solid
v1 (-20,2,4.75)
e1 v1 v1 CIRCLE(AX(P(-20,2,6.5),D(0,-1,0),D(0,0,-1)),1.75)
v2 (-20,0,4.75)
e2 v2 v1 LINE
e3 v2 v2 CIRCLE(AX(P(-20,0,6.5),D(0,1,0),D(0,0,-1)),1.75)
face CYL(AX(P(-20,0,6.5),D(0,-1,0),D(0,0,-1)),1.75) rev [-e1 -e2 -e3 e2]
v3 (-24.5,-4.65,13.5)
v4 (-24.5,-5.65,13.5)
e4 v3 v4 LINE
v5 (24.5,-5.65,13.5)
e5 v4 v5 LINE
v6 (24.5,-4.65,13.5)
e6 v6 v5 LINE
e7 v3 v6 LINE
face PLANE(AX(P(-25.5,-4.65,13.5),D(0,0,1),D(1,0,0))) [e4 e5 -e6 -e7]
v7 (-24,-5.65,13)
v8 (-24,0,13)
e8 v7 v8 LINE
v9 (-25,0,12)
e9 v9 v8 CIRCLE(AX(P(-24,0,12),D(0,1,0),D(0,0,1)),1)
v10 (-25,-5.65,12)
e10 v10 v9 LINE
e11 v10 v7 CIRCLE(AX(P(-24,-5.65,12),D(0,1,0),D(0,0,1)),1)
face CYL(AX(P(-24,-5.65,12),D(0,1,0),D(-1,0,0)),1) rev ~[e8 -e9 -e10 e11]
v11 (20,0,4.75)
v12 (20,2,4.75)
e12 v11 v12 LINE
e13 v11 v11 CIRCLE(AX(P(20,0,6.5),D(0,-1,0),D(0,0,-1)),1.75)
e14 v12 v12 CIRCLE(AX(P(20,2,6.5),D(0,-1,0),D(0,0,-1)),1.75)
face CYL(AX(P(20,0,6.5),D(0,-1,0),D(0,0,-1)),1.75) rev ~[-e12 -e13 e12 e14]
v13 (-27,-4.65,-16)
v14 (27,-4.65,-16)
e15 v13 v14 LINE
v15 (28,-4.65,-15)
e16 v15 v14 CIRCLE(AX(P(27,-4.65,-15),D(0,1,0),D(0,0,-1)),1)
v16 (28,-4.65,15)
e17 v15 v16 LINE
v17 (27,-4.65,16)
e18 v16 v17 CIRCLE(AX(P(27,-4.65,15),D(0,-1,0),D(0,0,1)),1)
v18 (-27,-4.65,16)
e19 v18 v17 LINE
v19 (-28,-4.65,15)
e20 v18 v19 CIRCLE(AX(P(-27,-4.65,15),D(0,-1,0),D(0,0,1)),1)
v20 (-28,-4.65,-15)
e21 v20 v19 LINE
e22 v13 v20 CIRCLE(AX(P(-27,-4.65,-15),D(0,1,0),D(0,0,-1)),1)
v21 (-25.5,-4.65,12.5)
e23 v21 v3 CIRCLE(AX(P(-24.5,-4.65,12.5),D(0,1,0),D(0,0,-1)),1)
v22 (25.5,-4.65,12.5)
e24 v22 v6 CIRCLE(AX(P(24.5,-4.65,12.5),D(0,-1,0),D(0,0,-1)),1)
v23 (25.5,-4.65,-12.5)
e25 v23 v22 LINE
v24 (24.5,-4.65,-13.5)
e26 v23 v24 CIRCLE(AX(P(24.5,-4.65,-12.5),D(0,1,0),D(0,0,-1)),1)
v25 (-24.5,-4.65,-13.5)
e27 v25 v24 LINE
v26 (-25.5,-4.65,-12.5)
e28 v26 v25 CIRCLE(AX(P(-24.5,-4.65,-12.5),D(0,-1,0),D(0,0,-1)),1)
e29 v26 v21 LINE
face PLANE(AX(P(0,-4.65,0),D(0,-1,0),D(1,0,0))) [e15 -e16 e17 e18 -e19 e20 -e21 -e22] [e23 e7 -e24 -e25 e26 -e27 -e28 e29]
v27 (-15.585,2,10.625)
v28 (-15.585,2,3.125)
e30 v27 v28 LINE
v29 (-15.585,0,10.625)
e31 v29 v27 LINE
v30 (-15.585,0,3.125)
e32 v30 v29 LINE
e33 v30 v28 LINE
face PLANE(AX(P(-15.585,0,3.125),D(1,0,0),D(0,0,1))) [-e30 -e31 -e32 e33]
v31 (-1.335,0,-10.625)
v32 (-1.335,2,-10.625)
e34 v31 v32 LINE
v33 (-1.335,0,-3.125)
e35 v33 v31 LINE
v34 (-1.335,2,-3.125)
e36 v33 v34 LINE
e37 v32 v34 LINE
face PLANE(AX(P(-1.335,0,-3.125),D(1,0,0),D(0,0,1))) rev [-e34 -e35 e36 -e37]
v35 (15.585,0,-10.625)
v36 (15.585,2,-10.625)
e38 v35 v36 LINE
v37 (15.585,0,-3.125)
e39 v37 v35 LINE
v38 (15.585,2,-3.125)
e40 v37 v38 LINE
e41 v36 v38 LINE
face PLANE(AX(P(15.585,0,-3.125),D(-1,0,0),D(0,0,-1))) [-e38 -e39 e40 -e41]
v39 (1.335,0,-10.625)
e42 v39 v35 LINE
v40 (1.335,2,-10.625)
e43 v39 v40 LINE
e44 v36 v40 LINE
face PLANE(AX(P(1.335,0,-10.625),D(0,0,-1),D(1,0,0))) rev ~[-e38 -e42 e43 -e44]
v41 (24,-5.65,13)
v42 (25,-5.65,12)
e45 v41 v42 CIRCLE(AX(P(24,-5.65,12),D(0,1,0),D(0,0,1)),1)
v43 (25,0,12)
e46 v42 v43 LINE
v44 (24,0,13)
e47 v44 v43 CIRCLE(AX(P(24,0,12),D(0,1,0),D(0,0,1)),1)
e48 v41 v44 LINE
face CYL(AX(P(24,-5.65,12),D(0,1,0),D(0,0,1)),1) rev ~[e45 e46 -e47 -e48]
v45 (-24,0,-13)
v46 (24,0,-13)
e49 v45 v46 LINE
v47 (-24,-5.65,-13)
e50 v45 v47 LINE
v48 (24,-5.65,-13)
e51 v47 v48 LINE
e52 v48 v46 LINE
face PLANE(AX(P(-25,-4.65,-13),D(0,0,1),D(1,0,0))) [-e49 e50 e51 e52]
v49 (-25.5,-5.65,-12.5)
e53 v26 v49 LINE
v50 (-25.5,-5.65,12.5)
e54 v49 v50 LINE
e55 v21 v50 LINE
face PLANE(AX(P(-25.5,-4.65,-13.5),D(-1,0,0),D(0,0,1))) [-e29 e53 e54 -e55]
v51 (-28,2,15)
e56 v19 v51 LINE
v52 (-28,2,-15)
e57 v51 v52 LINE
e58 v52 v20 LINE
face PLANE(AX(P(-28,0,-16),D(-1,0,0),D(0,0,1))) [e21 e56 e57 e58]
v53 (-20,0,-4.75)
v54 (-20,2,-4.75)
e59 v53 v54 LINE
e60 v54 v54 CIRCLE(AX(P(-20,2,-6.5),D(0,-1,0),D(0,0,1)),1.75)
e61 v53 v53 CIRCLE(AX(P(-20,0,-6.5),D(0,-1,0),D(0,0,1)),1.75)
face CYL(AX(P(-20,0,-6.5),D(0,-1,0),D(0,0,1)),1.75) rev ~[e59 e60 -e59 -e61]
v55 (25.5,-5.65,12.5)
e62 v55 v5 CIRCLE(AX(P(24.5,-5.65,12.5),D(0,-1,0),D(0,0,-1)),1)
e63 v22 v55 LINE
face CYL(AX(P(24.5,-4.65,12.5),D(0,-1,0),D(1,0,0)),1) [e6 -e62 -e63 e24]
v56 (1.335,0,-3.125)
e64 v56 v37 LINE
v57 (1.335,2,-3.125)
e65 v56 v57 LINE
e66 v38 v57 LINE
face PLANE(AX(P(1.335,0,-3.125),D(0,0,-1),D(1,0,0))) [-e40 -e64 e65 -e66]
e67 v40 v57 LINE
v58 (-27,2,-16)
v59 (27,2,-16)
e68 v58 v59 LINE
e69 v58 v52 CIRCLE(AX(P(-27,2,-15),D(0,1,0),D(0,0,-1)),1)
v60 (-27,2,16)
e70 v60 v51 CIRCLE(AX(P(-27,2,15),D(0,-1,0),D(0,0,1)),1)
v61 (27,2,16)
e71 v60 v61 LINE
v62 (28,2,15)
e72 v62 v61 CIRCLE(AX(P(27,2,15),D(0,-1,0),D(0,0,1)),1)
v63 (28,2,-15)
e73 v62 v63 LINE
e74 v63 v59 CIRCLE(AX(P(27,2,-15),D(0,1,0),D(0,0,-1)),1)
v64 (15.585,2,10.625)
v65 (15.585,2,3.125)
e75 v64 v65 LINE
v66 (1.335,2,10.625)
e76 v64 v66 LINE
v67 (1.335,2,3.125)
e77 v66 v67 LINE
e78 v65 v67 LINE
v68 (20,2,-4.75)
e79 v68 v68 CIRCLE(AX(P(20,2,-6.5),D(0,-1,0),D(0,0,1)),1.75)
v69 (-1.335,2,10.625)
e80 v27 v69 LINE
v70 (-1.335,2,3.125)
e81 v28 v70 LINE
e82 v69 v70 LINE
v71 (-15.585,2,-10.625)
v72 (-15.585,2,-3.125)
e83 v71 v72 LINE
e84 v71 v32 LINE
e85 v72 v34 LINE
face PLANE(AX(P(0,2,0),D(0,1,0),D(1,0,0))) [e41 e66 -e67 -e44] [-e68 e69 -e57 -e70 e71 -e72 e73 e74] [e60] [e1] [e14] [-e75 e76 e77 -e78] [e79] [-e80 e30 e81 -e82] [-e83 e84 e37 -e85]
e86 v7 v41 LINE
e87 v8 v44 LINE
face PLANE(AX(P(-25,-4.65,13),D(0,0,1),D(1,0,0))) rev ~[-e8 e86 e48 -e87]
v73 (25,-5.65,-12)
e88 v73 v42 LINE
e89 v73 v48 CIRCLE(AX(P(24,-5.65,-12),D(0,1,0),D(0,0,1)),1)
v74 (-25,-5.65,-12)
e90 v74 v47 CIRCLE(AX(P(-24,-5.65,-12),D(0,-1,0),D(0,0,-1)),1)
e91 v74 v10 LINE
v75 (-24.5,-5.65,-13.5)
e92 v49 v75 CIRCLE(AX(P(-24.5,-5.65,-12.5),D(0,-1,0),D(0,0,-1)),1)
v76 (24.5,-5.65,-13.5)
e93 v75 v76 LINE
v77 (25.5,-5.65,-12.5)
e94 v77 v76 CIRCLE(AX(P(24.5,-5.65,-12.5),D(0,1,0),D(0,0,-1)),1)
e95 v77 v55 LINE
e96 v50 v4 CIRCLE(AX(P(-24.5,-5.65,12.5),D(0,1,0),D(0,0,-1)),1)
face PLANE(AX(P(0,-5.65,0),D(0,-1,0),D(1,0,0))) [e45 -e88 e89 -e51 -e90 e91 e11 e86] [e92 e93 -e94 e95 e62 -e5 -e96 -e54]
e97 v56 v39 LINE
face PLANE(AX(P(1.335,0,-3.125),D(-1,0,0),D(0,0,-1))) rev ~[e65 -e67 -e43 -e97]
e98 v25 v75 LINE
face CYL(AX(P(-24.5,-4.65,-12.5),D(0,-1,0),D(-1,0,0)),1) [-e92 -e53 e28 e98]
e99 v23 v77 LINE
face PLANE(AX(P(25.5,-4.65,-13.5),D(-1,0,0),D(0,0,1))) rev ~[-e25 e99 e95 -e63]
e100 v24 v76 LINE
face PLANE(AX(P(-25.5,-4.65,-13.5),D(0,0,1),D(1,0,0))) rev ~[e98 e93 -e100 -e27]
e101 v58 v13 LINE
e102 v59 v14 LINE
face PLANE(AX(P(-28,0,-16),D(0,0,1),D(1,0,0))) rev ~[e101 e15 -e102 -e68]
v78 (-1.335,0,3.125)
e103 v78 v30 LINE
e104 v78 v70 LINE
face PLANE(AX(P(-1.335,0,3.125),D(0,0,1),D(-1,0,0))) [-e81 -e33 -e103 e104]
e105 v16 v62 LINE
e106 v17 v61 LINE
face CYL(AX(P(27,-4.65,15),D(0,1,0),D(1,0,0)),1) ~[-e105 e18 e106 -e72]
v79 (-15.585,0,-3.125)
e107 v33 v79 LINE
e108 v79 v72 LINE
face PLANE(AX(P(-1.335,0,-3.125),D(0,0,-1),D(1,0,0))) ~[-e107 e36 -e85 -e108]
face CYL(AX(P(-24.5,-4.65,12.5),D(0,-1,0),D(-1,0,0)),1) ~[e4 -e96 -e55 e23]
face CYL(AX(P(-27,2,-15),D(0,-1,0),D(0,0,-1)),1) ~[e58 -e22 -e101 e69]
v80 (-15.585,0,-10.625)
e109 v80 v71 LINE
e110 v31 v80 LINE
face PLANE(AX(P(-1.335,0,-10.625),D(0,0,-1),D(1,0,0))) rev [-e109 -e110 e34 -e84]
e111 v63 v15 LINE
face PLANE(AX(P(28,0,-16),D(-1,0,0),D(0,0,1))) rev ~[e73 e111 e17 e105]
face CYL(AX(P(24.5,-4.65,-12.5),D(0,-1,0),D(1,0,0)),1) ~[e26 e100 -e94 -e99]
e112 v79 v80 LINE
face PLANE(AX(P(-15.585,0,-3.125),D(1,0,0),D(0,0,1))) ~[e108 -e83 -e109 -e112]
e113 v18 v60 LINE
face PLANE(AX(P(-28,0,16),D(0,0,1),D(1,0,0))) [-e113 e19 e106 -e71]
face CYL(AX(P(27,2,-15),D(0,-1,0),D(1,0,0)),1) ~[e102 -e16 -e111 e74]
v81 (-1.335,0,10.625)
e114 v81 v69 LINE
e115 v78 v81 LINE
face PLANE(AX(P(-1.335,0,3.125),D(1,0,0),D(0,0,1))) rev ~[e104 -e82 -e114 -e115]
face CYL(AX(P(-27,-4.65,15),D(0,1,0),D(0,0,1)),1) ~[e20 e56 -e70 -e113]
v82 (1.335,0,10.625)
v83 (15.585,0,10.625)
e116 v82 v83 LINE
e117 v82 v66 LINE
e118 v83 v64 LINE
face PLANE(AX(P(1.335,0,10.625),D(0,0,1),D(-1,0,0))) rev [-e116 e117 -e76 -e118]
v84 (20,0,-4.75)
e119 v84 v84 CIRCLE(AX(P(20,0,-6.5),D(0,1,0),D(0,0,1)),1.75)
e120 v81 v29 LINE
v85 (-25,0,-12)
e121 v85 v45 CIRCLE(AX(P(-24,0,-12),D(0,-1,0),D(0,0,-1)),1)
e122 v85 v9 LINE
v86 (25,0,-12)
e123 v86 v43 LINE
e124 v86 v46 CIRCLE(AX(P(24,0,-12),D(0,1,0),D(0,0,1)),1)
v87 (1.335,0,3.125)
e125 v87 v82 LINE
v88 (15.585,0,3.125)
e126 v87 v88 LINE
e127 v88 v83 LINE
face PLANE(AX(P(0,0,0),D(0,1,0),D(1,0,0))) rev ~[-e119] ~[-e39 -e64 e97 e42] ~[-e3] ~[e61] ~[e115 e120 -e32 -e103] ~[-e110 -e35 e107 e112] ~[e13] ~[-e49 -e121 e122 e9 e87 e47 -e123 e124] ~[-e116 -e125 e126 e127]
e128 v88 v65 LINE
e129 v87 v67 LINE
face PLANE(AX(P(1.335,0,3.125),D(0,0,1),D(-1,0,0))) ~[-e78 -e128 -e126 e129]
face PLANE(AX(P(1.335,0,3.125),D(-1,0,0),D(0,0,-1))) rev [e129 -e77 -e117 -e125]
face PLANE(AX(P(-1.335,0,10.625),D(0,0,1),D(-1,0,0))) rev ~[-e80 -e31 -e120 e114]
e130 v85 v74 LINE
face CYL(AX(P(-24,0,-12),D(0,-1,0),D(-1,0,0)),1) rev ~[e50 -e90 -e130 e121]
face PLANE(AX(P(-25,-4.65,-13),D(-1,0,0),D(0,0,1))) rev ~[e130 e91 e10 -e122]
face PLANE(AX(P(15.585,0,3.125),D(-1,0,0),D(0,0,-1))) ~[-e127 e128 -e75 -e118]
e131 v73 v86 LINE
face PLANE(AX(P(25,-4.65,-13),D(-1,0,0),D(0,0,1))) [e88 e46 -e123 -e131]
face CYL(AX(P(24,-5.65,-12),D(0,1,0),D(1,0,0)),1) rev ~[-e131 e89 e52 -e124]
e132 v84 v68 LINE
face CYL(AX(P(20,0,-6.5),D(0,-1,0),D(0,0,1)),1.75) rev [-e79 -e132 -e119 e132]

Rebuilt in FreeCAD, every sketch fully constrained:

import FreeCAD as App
import Part
import Sketcher


def edges_at(feature, points):
    """Names of the edges that pass closest to the given points."""
    edges = feature.Shape.Edges
    near = lambda p: min(range(len(edges)), key=lambda i: edges[i].distToShape(Part.Vertex(*p))[0])
    return sorted({f"Edge{near(p) + 1}" for p in points})

doc = App.newDocument("Part")
body = doc.addObject("PartDesign::Body", "Body")

sketch1 = body.newObject("Sketcher::SketchObject", "Sketch")
sketch1.AttachmentSupport = (doc.getObject("XZ_Plane"), [""])
sketch1.MapMode = "FlatFace"
sketch1.addGeometry([
    Part.LineSegment(App.Vector(-28, -16, 0), App.Vector(-28, 16, 0)),
    Part.LineSegment(App.Vector(-28, 16, 0), App.Vector(28, 16, 0)),
    Part.LineSegment(App.Vector(28, 16, 0), App.Vector(28, -16, 0)),
    Part.LineSegment(App.Vector(28, -16, 0), App.Vector(-28, -16, 0)),
], False)
sketch1.addConstraint([
    Sketcher.Constraint("Coincident", 0, 2, 1, 1),
    Sketcher.Constraint("Coincident", 1, 2, 2, 1),
    Sketcher.Constraint("Coincident", 2, 2, 3, 1),
    Sketcher.Constraint("Coincident", 3, 2, 0, 1),
    Sketcher.Constraint("Vertical", 0),
    Sketcher.Constraint("Horizontal", 1),
    Sketcher.Constraint("Vertical", 2),
    Sketcher.Constraint("Horizontal", 3),
    Sketcher.Constraint("Symmetric", 0, 2, 2, 2, -1, 1),
    Sketcher.Constraint("DistanceX", 1, 1, 1, 2, 56.0),
    Sketcher.Constraint("DistanceY", 0, 1, 0, 2, 32.0),
])
pad1 = body.newObject("PartDesign::Pad", "Pad")
pad1.Profile = sketch1
pad1.Length = 2
pad1.Reversed = True

sketch2 = body.newObject("Sketcher::SketchObject", "Sketch001")
sketch2.AttachmentSupport = (doc.getObject("XZ_Plane"), [""])
sketch2.MapMode = "FlatFace"
sketch2.addGeometry(Part.Circle(App.Vector(20, -6.5, 0), App.Vector(0, 0, 1), 1.8), False)
sketch2.addConstraint([
    Sketcher.Constraint("Diameter", 0, 3.5),
    Sketcher.Constraint("DistanceX", -1, 1, 0, 3, 20.0),
    Sketcher.Constraint("DistanceY", 0, 3, -1, 1, 6.5),
])
pocket1 = body.newObject("PartDesign::Pocket", "Pocket")
pocket1.Profile = sketch2
pocket1.Type = "ThroughAll"
doc.recompute()

mirrored = body.newObject("PartDesign::Mirrored", "Mirrored")
mirrored.Originals = [pocket1]
mirrored.MirrorPlane = (doc.getObject("XY_Plane"), [""])
body.Tip = mirrored
doc.recompute()

mirrored2 = body.newObject("PartDesign::Mirrored", "Mirrored001")
mirrored2.Originals = [pocket1]
mirrored2.MirrorPlane = (doc.getObject("YZ_Plane"), [""])
body.Tip = mirrored2

sketch3 = body.newObject("Sketcher::SketchObject", "Sketch002")
sketch3.AttachmentSupport = (doc.getObject("XZ_Plane"), [""])
sketch3.MapMode = "FlatFace"
sketch3.addGeometry(Part.Circle(App.Vector(-20, 6.5, 0), App.Vector(0, 0, 1), 1.8), False)
sketch3.addConstraint([
    Sketcher.Constraint("Diameter", 0, 3.5),
    Sketcher.Constraint("DistanceX", 0, 3, -1, 1, 20.0),
    Sketcher.Constraint("DistanceY", -1, 1, 0, 3, 6.5),
])
pocket2 = body.newObject("PartDesign::Pocket", "Pocket001")
pocket2.Profile = sketch3
pocket2.Type = "ThroughAll"

sketch4 = body.newObject("Sketcher::SketchObject", "Sketch003")
sketch4.AttachmentSupport = (doc.getObject("XZ_Plane"), [""])
sketch4.MapMode = "FlatFace"
sketch4.addGeometry([
    Part.LineSegment(App.Vector(1, -11, 0), App.Vector(1, -3, 0)),
    Part.LineSegment(App.Vector(1, -3, 0), App.Vector(16, -3, 0)),
    Part.LineSegment(App.Vector(16, -3, 0), App.Vector(16, -11, 0)),
    Part.LineSegment(App.Vector(16, -11, 0), App.Vector(1, -11, 0)),
], False)
sketch4.addConstraint([
    Sketcher.Constraint("Coincident", 0, 2, 1, 1),
    Sketcher.Constraint("Coincident", 1, 2, 2, 1),
    Sketcher.Constraint("Coincident", 2, 2, 3, 1),
    Sketcher.Constraint("Coincident", 3, 2, 0, 1),
    Sketcher.Constraint("Vertical", 0),
    Sketcher.Constraint("Horizontal", 1),
    Sketcher.Constraint("Vertical", 2),
    Sketcher.Constraint("Horizontal", 3),
    Sketcher.Constraint("DistanceY", 0, 1, 0, 2, 7.5),
    Sketcher.Constraint("DistanceX", 1, 1, 1, 2, 14.25),
    Sketcher.Constraint("DistanceX", -1, 1, 0, 2, 1.335),
    Sketcher.Constraint("DistanceY", 0, 2, -1, 1, 3.125),
])
pocket3 = body.newObject("PartDesign::Pocket", "Pocket002")
pocket3.Profile = sketch4
pocket3.Type = "ThroughAll"
doc.recompute()

mirrored3 = body.newObject("PartDesign::Mirrored", "Mirrored002")
mirrored3.Originals = [pocket3]
mirrored3.MirrorPlane = (doc.getObject("YZ_Plane"), [""])
body.Tip = mirrored3
doc.recompute()

mirrored4 = body.newObject("PartDesign::Mirrored", "Mirrored003")
mirrored4.Originals = [pocket3]
mirrored4.MirrorPlane = (doc.getObject("XY_Plane"), [""])
body.Tip = mirrored4

sketch5 = body.newObject("Sketcher::SketchObject", "Sketch004")
sketch5.AttachmentSupport = (doc.getObject("XZ_Plane"), [""])
sketch5.MapMode = "FlatFace"
sketch5.addGeometry([
    Part.LineSegment(App.Vector(-1, 11, 0), App.Vector(-1, 3, 0)),
    Part.LineSegment(App.Vector(-1, 3, 0), App.Vector(-16, 3, 0)),
    Part.LineSegment(App.Vector(-16, 3, 0), App.Vector(-16, 11, 0)),
    Part.LineSegment(App.Vector(-16, 11, 0), App.Vector(-1, 11, 0)),
], False)
sketch5.addConstraint([
    Sketcher.Constraint("Coincident", 0, 2, 1, 1),
    Sketcher.Constraint("Coincident", 1, 2, 2, 1),
    Sketcher.Constraint("Coincident", 2, 2, 3, 1),
    Sketcher.Constraint("Coincident", 3, 2, 0, 1),
    Sketcher.Constraint("Vertical", 0),
    Sketcher.Constraint("Horizontal", 1),
    Sketcher.Constraint("Vertical", 2),
    Sketcher.Constraint("Horizontal", 3),
    Sketcher.Constraint("DistanceY", 0, 2, 0, 1, 7.5),
    Sketcher.Constraint("DistanceX", 1, 2, 1, 1, 14.25),
    Sketcher.Constraint("DistanceX", 0, 2, -1, 1, 1.335),
    Sketcher.Constraint("DistanceY", -1, 1, 0, 2, 3.125),
])
pocket4 = body.newObject("PartDesign::Pocket", "Pocket003")
pocket4.Profile = sketch5
pocket4.Type = "ThroughAll"

sketch6 = body.newObject("Sketcher::SketchObject", "Sketch005")
sketch6.AttachmentSupport = (doc.getObject("XZ_Plane"), [""])
sketch6.MapMode = "FlatFace"
sketch6.addGeometry([
    Part.LineSegment(App.Vector(-28, 16, 0), App.Vector(-28, -16, 0)),
    Part.LineSegment(App.Vector(-28, -16, 0), App.Vector(28, -16, 0)),
    Part.LineSegment(App.Vector(28, -16, 0), App.Vector(28, 16, 0)),
    Part.LineSegment(App.Vector(28, 16, 0), App.Vector(-28, 16, 0)),
    Part.LineSegment(App.Vector(25, -13, 0), App.Vector(-25, -13, 0)),
    Part.LineSegment(App.Vector(-25, -13, 0), App.Vector(-25, 13, 0)),
    Part.LineSegment(App.Vector(-25, 13, 0), App.Vector(25, 13, 0)),
    Part.LineSegment(App.Vector(25, 13, 0), App.Vector(25, -13, 0)),
], False)
sketch6.addConstraint([
    Sketcher.Constraint("Coincident", 0, 2, 1, 1),
    Sketcher.Constraint("Coincident", 1, 2, 2, 1),
    Sketcher.Constraint("Coincident", 2, 2, 3, 1),
    Sketcher.Constraint("Coincident", 3, 2, 0, 1),
    Sketcher.Constraint("Coincident", 4, 2, 5, 1),
    Sketcher.Constraint("Coincident", 5, 2, 6, 1),
    Sketcher.Constraint("Coincident", 6, 2, 7, 1),
    Sketcher.Constraint("Coincident", 7, 2, 4, 1),
    Sketcher.Constraint("Vertical", 0),
    Sketcher.Constraint("Horizontal", 1),
    Sketcher.Constraint("Vertical", 2),
    Sketcher.Constraint("Horizontal", 3),
    Sketcher.Constraint("Horizontal", 4),
    Sketcher.Constraint("Vertical", 5),
    Sketcher.Constraint("Horizontal", 6),
    Sketcher.Constraint("Vertical", 7),
    Sketcher.Constraint("Symmetric", 0, 2, 2, 2, -1, 1),
    Sketcher.Constraint("Symmetric", 4, 2, 6, 2, -1, 1),
    Sketcher.Constraint("DistanceX", 1, 1, 1, 2, 56.0),
    Sketcher.Constraint("DistanceX", 4, 2, 4, 1, 50.0),
    Sketcher.Constraint("DistanceY", 0, 2, 0, 1, 32.0),
    Sketcher.Constraint("DistanceY", 5, 1, 5, 2, 26.0),
])
pad2 = body.newObject("PartDesign::Pad", "Pad001")
pad2.Profile = sketch6
pad2.Length = 4.65

sketch7 = body.newObject("Sketcher::SketchObject", "Sketch006")
sketch7.AttachmentSupport = (doc.getObject("XZ_Plane"), [""])
sketch7.MapMode = "FlatFace"
sketch7.AttachmentOffset = App.Placement(App.Vector(0, 0, 4.65), App.Rotation())
sketch7.addGeometry([
    Part.LineSegment(App.Vector(-26, 14, 0), App.Vector(-26, -14, 0)),
    Part.LineSegment(App.Vector(-26, -14, 0), App.Vector(26, -14, 0)),
    Part.LineSegment(App.Vector(26, -14, 0), App.Vector(26, 14, 0)),
    Part.LineSegment(App.Vector(26, 14, 0), App.Vector(-26, 14, 0)),
    Part.LineSegment(App.Vector(25, -13, 0), App.Vector(-25, -13, 0)),
    Part.LineSegment(App.Vector(-25, -13, 0), App.Vector(-25, 13, 0)),
    Part.LineSegment(App.Vector(-25, 13, 0), App.Vector(25, 13, 0)),
    Part.LineSegment(App.Vector(25, 13, 0), App.Vector(25, -13, 0)),
], False)
sketch7.addConstraint([
    Sketcher.Constraint("Coincident", 0, 2, 1, 1),
    Sketcher.Constraint("Coincident", 1, 2, 2, 1),
    Sketcher.Constraint("Coincident", 2, 2, 3, 1),
    Sketcher.Constraint("Coincident", 3, 2, 0, 1),
    Sketcher.Constraint("Coincident", 4, 2, 5, 1),
    Sketcher.Constraint("Coincident", 5, 2, 6, 1),
    Sketcher.Constraint("Coincident", 6, 2, 7, 1),
    Sketcher.Constraint("Coincident", 7, 2, 4, 1),
    Sketcher.Constraint("Vertical", 0),
    Sketcher.Constraint("Horizontal", 1),
    Sketcher.Constraint("Vertical", 2),
    Sketcher.Constraint("Horizontal", 3),
    Sketcher.Constraint("Horizontal", 4),
    Sketcher.Constraint("Vertical", 5),
    Sketcher.Constraint("Horizontal", 6),
    Sketcher.Constraint("Vertical", 7),
    Sketcher.Constraint("Symmetric", 0, 2, 2, 2, -1, 1),
    Sketcher.Constraint("Symmetric", 4, 2, 6, 2, -1, 1),
    Sketcher.Constraint("DistanceX", 1, 1, 1, 2, 51.0),
    Sketcher.Constraint("DistanceX", 4, 2, 4, 1, 50.0),
    Sketcher.Constraint("DistanceY", 0, 2, 0, 1, 27.0),
    Sketcher.Constraint("DistanceY", 5, 1, 5, 2, 26.0),
])
pad3 = body.newObject("PartDesign::Pad", "Pad002")
pad3.Profile = sketch7
pad3.Length = 1
doc.recompute()

fillet = body.newObject("PartDesign::Fillet", "Fillet")
fillet.Base = (pad3, edges_at(pad3, [
    (-25.5, -5.15, -13.5),
    (25.5, -5.15, -13.5),
    (25.5, -5.15, 13.5),
    (-25.5, -5.15, 13.5),
    (28, -1.325, 16),
    (-28, -1.325, 16),
    (-28, -1.325, -16),
    (28, -1.325, -16),
    (25, -2.825, -13),
    (25, -2.825, 13),
    (-25, -2.825, 13),
    (-25, -2.825, -13),
]))
fillet.Radius = 1

doc.recompute()
